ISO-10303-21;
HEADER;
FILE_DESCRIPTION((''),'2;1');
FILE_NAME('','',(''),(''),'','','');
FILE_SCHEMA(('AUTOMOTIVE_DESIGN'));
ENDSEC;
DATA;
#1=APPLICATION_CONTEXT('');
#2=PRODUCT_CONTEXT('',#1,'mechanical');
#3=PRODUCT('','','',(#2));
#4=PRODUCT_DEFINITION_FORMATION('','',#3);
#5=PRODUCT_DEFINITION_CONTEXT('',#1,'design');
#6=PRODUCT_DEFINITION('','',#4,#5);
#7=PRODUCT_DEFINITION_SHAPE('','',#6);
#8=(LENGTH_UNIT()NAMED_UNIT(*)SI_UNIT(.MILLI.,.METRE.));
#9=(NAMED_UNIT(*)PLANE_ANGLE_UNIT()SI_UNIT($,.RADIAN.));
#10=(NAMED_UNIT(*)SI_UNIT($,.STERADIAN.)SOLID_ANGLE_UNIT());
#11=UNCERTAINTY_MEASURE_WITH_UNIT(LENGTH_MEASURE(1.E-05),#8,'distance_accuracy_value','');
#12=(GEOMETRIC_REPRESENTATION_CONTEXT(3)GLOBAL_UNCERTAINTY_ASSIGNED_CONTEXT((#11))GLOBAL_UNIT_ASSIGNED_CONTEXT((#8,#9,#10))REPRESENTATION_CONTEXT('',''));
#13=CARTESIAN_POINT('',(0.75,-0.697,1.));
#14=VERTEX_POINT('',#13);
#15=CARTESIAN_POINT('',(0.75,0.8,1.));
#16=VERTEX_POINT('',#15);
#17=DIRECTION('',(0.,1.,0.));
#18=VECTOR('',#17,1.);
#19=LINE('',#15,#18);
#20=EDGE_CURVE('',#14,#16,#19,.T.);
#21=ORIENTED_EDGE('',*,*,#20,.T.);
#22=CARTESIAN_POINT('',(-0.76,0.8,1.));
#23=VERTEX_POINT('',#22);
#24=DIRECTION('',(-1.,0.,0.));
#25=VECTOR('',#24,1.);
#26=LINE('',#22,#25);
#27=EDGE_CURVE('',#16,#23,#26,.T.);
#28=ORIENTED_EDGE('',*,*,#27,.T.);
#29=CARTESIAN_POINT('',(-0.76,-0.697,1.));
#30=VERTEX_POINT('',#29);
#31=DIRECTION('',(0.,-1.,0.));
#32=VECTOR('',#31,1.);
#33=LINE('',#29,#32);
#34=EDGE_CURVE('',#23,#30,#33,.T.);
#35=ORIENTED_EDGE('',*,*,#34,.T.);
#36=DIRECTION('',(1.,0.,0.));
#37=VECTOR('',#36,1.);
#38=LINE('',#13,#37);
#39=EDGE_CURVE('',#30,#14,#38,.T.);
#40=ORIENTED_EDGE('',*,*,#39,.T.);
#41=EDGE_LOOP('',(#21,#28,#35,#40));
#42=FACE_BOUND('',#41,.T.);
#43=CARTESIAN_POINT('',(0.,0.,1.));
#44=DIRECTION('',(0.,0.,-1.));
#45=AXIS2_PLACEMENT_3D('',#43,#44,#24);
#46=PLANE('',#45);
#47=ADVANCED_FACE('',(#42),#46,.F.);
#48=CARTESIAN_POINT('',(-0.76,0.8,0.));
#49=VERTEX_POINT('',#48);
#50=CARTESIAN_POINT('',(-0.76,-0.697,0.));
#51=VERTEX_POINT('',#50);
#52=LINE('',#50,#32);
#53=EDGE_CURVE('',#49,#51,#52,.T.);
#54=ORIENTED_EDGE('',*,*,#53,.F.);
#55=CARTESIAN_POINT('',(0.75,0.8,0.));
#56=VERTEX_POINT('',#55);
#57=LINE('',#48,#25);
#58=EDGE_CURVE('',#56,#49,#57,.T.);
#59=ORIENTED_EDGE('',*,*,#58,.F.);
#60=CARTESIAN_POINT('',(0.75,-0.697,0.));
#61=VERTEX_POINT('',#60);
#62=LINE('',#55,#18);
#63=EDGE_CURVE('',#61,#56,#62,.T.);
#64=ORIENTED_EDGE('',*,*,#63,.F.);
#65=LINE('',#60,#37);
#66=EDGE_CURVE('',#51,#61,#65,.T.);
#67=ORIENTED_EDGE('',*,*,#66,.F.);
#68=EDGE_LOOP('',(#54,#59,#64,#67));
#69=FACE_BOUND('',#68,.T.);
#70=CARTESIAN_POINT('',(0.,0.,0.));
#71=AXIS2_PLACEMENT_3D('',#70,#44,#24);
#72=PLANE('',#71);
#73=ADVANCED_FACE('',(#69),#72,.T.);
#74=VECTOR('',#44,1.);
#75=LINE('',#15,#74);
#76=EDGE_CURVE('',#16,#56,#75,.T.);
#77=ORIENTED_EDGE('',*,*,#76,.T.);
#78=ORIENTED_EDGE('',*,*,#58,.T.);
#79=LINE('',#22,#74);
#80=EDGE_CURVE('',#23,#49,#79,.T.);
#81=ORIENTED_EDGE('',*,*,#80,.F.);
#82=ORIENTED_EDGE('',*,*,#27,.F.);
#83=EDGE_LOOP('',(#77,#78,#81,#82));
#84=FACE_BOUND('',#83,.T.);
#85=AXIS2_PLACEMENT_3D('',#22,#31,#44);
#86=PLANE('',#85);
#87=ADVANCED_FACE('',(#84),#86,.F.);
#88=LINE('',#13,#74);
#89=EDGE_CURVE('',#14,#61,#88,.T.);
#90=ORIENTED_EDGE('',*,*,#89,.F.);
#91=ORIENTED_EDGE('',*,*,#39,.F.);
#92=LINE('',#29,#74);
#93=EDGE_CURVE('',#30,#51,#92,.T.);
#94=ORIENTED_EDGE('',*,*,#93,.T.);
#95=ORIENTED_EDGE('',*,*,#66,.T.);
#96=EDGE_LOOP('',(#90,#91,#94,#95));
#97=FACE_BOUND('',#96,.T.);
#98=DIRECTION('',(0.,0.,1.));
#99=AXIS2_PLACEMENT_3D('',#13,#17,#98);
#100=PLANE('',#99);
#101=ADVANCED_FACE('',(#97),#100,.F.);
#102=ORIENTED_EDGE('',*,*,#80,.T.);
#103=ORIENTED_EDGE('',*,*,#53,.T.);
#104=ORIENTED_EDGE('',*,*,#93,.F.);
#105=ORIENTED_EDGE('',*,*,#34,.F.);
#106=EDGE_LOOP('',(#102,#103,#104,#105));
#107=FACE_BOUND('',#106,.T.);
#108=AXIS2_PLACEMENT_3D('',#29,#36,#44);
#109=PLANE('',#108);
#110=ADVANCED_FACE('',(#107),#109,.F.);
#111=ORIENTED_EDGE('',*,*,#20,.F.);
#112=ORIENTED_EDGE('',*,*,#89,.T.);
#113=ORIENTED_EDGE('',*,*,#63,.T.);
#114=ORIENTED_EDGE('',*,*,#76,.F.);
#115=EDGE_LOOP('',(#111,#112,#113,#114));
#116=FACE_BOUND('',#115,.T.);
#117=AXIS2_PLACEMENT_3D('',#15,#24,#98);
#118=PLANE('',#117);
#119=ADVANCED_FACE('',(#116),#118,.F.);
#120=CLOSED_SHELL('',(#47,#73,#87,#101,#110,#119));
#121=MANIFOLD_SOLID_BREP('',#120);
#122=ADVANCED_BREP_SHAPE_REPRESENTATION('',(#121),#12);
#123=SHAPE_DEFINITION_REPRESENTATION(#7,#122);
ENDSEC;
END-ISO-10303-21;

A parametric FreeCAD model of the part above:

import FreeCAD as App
import Part
import Sketcher
from FreeCAD import Vector

doc = App.newDocument("Part")
body = doc.addObject("PartDesign::Body", "Body")

sketch1 = body.newObject("Sketcher::SketchObject", "Sketch")
sketch1.AttachmentSupport = (doc.getObject("XY_Plane"), [""])
sketch1.MapMode = "FlatFace"
sketch1.addGeometry([
    Part.LineSegment(Vector(-0.8, 0.8, 0), Vector(-0.8, -0.7, 0)),
    Part.LineSegment(Vector(-0.8, -0.7, 0), Vector(0.8, -0.7, 0)),
    Part.LineSegment(Vector(0.8, -0.7, 0), Vector(0.8, 0.8, 0)),
    Part.LineSegment(Vector(0.8, 0.8, 0), Vector(-0.8, 0.8, 0)),
], False)
sketch1.addConstraint([
    Sketcher.Constraint("Coincident", 0, 2, 1, 1),
    Sketcher.Constraint("Coincident", 1, 2, 2, 1),
    Sketcher.Constraint("Coincident", 2, 2, 3, 1),
    Sketcher.Constraint("Coincident", 3, 2, 0, 1),
    Sketcher.Constraint("Vertical", 0),
    Sketcher.Constraint("Horizontal", 1),
    Sketcher.Constraint("Vertical", 2),
    Sketcher.Constraint("Horizontal", 3),
    Sketcher.Constraint("DistanceX", 1, 1, 1, 2, 1.51),
    Sketcher.Constraint("DistanceY", -1, 1, 2, 2, 0.8),
    Sketcher.Constraint("DistanceY", 0, 2, 0, 1, 1.497),
    Sketcher.Constraint("DistanceX", 0, 2, -1, 1, 0.76),
])
pad1 = body.newObject("PartDesign::Pad", "Pad")
pad1.Profile = sketch1
pad1.Length = 1

doc.recompute()
